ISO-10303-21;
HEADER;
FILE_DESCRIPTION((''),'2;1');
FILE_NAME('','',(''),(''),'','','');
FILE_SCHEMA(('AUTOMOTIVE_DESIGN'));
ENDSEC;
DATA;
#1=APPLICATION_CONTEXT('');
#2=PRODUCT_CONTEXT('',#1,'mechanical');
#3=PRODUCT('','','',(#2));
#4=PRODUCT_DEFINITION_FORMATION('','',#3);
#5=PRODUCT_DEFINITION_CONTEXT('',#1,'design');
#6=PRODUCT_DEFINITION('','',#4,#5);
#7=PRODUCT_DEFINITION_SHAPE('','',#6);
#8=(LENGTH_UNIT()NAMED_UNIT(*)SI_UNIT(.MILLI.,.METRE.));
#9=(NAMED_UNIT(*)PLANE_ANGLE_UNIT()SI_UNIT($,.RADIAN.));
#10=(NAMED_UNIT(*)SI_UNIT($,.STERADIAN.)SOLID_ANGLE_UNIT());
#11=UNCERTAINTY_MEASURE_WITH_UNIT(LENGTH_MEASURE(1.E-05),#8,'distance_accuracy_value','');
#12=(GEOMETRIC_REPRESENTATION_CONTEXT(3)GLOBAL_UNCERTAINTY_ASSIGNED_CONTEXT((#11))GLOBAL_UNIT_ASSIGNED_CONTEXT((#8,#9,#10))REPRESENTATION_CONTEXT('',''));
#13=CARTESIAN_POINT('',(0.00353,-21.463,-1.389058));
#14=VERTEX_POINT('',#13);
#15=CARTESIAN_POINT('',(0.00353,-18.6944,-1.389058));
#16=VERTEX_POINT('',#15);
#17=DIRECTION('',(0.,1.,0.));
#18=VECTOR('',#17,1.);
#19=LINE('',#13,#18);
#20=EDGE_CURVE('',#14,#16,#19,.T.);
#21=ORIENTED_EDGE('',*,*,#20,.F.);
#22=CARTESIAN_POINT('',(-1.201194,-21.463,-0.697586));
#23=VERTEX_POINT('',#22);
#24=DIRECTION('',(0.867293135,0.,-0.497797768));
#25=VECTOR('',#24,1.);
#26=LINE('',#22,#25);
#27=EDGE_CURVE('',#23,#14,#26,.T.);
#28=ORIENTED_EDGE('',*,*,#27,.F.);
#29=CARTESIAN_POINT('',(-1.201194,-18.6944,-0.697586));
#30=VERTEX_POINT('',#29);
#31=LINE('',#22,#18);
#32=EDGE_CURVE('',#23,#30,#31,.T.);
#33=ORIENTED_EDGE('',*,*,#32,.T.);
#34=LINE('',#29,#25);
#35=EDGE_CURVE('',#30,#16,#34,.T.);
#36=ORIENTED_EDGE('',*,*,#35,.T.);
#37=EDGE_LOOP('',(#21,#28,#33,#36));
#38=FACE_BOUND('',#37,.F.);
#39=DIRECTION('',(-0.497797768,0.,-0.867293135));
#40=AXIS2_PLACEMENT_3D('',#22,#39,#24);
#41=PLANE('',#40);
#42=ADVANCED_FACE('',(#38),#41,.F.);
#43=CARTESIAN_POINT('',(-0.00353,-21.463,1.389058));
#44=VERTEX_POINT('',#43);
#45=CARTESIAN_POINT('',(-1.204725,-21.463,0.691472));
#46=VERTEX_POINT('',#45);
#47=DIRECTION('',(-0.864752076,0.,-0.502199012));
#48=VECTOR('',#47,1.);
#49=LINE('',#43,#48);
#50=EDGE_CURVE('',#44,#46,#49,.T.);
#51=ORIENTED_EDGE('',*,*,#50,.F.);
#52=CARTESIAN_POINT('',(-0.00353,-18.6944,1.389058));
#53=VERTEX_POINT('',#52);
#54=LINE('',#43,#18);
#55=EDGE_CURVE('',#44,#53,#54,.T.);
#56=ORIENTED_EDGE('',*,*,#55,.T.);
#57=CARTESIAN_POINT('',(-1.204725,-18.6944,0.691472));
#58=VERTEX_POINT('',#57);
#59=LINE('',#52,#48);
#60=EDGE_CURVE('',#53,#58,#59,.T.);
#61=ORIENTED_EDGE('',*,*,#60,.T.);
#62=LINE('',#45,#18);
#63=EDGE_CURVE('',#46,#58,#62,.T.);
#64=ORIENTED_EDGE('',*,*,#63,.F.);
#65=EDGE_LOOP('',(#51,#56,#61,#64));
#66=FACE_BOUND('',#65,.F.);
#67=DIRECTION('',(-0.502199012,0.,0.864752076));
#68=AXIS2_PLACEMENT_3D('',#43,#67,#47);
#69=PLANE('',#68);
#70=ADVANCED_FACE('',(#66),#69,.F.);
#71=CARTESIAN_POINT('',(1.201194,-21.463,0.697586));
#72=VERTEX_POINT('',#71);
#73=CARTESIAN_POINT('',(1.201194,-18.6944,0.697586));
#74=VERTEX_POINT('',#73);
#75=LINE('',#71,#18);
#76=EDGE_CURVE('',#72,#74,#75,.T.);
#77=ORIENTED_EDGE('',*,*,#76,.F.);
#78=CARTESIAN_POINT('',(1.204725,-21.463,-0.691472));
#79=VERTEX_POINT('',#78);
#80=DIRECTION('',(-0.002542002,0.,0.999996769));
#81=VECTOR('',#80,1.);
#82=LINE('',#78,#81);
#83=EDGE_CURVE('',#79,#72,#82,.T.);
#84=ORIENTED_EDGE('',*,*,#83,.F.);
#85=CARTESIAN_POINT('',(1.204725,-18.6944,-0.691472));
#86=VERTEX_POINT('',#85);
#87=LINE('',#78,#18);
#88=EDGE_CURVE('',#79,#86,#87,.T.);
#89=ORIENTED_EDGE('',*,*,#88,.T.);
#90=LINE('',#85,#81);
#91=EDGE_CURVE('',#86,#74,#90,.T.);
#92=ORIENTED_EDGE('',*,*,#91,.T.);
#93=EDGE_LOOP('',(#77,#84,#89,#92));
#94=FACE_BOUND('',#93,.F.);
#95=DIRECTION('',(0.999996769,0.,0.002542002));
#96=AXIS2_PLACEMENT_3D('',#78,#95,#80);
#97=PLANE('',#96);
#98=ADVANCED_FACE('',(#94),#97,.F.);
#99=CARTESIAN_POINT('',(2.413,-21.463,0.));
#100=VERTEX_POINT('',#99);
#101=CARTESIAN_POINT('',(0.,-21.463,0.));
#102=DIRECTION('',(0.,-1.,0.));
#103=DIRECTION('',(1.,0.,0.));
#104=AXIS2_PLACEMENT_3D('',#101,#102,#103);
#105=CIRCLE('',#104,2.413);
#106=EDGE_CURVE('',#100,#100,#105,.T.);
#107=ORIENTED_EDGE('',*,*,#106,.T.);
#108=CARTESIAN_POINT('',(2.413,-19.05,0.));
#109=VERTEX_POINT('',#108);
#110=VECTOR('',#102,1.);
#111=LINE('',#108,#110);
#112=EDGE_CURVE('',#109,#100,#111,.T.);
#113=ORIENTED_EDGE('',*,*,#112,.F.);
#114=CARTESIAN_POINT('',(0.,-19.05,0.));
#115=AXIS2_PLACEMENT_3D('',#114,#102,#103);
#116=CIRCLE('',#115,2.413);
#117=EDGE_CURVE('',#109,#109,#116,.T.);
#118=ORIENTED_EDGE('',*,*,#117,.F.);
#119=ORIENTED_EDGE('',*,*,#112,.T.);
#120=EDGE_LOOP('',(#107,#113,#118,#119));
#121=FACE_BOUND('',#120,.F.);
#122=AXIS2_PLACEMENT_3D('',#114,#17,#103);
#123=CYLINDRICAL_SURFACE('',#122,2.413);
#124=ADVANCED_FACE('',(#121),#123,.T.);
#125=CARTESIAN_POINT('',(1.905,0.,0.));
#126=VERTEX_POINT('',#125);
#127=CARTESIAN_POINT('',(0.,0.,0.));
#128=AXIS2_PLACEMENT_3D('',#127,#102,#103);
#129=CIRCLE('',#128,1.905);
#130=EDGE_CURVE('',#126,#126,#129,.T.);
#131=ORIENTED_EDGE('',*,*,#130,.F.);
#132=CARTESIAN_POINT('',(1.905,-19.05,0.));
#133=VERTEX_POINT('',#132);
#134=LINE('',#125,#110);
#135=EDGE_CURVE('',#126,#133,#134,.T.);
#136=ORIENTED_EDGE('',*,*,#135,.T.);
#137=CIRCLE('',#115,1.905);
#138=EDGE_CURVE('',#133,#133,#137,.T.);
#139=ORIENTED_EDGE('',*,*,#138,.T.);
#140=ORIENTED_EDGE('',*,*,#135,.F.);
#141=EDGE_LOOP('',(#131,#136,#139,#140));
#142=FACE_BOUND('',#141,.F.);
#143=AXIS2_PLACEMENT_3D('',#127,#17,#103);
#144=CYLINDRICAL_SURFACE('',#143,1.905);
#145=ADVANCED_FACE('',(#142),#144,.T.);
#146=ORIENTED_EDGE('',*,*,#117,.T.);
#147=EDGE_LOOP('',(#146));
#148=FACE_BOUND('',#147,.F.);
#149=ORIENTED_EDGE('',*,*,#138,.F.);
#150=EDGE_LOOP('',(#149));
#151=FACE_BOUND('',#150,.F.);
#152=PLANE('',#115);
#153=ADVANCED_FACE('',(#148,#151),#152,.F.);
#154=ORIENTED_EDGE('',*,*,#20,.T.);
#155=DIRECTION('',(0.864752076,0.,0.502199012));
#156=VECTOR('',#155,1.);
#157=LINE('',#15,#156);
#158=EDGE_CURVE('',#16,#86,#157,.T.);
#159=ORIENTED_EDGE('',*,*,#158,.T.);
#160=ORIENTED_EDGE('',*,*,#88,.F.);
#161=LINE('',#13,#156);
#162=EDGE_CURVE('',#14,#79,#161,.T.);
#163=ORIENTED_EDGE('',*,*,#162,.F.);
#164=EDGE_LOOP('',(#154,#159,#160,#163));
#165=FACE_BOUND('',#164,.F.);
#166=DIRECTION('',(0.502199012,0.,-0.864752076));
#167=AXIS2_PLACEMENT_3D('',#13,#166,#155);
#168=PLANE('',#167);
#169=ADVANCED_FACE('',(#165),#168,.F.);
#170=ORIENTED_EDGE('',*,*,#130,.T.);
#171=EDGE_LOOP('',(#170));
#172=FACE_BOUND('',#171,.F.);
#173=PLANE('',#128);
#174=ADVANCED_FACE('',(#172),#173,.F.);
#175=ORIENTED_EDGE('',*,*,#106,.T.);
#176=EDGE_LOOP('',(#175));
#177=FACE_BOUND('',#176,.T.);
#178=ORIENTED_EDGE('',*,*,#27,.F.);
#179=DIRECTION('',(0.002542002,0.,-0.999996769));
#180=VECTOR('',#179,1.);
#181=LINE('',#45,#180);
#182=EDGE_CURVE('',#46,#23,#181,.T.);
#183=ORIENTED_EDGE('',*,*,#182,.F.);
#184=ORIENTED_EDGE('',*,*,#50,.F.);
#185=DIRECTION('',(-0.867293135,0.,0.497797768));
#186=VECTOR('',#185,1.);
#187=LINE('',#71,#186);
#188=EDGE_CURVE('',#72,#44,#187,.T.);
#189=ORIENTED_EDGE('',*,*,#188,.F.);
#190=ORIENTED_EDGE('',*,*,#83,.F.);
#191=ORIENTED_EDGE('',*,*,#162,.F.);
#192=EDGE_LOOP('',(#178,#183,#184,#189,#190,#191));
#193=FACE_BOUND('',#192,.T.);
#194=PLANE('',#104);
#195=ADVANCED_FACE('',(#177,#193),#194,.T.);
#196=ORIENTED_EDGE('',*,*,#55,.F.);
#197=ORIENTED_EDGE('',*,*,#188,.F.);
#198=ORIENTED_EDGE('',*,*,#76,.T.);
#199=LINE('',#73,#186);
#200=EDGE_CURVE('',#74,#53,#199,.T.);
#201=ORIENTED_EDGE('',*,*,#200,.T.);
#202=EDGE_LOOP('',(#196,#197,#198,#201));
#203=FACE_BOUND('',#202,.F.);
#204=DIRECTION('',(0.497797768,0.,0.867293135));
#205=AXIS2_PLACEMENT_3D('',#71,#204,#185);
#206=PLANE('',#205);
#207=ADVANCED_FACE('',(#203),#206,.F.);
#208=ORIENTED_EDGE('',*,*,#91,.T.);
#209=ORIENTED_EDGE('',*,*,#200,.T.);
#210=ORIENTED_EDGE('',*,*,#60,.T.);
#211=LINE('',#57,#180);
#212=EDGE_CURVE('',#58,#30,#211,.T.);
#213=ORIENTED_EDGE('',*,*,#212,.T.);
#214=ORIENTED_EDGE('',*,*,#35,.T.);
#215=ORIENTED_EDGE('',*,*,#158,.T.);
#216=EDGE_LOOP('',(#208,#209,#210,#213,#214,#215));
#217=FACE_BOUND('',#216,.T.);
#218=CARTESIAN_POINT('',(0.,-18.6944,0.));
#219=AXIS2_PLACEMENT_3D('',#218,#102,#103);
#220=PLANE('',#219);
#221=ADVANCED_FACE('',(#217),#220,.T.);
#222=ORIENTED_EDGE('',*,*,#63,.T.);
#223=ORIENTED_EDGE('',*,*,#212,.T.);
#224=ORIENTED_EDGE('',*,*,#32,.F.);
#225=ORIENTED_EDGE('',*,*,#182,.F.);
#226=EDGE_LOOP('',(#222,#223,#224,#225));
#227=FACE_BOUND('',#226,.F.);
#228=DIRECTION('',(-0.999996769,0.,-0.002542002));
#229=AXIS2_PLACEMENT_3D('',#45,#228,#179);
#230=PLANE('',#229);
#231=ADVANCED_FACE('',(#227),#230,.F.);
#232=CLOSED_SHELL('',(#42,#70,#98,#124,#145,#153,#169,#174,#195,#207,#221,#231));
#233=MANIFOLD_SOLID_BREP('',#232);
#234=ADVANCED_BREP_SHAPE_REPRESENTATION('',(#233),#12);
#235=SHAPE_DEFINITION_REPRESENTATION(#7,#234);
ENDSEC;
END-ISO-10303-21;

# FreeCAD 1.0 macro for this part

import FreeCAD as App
import Part
import Sketcher
from FreeCAD import Vector
Q = App.Units.Quantity


def add_polygon(sketch, points):
    """Adds a closed chain of lines whose ends are joined by coincident constraints."""
    first, n = sketch.GeometryCount, len(points)
    for a, b in zip(points, points[1:] + points[:1]):
        sketch.addGeometry(Part.LineSegment(App.Vector(*a, 0), App.Vector(*b, 0)), False)
    for i in range(n):
        sketch.addConstraint(Sketcher.Constraint("Coincident", first + i, 2, first + (i + 1) % n, 1))

doc = App.newDocument("Part")
body = doc.addObject("PartDesign::Body", "Body")

sketch1 = body.newObject("Sketcher::SketchObject", "Sketch")
sketch1.AttachmentSupport = (doc.getObject("XZ_Plane"), [""])
sketch1.MapMode = "FlatFace"
sketch1.addGeometry(Part.Circle(Vector(0, 0, 0), Vector(0, 0, 1), 1.9), False)
sketch1.addConstraint(Sketcher.Constraint("Coincident", 0, 3, -1, 1))
sketch1.addConstraint(Sketcher.Constraint("Diameter", 0, Q("0.15 in")))
pad1 = body.newObject("PartDesign::Pad", "Pad")
pad1.Profile = sketch1
pad1.Length = Q("0.75 in")

sketch2 = body.newObject("Sketcher::SketchObject", "Sketch001")
sketch2.AttachmentSupport = (doc.getObject("XZ_Plane"), [""])
sketch2.MapMode = "FlatFace"
sketch2.AttachmentOffset = App.Placement(Vector(0, 0, 0.75 * 25.4), App.Rotation())
sketch2.addGeometry(Part.Circle(Vector(0, 0, 0), Vector(0, 0, 1), 2.4), False)
sketch2.addConstraint(Sketcher.Constraint("Coincident", 0, 3, -1, 1))
sketch2.addConstraint(Sketcher.Constraint("Diameter", 0, Q("0.19 in")))
pad2 = body.newObject("PartDesign::Pad", "Pad001")
pad2.Profile = sketch2
pad2.Length = Q("0.095 in")

sketch3 = body.newObject("Sketcher::SketchObject", "Sketch002")
sketch3.AttachmentSupport = (doc.getObject("XZ_Plane"), [""])
sketch3.MapMode = "FlatFace"
sketch3.AttachmentOffset = App.Placement(Vector(0, 0, 0.845 * 25.4), App.Rotation())
add_polygon(sketch3, [(0, 1.4), (-1.2, 0.7), (-1.2, -0.7), (0, -1.4), (1.2, -0.7), (1.2, 0.7)])
sketch3.addConstraint(Sketcher.Constraint("Symmetric", 0, 2, 3, 2, -1, 1))
sketch3.addConstraint(Sketcher.Constraint("Symmetric", 1, 2, 4, 2, -1, 1))
sketch3.addConstraint(Sketcher.Constraint("Symmetric", 2, 2, 5, 2, -1, 1))
sketch3.addConstraint(Sketcher.Constraint("Equal", 0, 1))
sketch3.addConstraint(Sketcher.Constraint("Equal", 1, 2))
sketch3.addConstraint(Sketcher.Constraint("DistanceY", -1, 1, 0, 2, Q("0.691472 mm")))
sketch3.addConstraint(Sketcher.Constraint("DistanceX", -1, 1, 2, 2, Q("0.00353 mm")))
sketch3.addConstraint(Sketcher.Constraint("DistanceX", 0, 2, 1, 2, Q("0.003531 mm")))
sketch3.addConstraint(Sketcher.Constraint("DistanceY", 2, 2, 1, 2, Q("0.691472 mm")))
pocket1 = body.newObject("PartDesign::Pocket", "Pocket")
pocket1.Profile = sketch3
pocket1.Length = Q("0.109 in")

doc.recompute()
